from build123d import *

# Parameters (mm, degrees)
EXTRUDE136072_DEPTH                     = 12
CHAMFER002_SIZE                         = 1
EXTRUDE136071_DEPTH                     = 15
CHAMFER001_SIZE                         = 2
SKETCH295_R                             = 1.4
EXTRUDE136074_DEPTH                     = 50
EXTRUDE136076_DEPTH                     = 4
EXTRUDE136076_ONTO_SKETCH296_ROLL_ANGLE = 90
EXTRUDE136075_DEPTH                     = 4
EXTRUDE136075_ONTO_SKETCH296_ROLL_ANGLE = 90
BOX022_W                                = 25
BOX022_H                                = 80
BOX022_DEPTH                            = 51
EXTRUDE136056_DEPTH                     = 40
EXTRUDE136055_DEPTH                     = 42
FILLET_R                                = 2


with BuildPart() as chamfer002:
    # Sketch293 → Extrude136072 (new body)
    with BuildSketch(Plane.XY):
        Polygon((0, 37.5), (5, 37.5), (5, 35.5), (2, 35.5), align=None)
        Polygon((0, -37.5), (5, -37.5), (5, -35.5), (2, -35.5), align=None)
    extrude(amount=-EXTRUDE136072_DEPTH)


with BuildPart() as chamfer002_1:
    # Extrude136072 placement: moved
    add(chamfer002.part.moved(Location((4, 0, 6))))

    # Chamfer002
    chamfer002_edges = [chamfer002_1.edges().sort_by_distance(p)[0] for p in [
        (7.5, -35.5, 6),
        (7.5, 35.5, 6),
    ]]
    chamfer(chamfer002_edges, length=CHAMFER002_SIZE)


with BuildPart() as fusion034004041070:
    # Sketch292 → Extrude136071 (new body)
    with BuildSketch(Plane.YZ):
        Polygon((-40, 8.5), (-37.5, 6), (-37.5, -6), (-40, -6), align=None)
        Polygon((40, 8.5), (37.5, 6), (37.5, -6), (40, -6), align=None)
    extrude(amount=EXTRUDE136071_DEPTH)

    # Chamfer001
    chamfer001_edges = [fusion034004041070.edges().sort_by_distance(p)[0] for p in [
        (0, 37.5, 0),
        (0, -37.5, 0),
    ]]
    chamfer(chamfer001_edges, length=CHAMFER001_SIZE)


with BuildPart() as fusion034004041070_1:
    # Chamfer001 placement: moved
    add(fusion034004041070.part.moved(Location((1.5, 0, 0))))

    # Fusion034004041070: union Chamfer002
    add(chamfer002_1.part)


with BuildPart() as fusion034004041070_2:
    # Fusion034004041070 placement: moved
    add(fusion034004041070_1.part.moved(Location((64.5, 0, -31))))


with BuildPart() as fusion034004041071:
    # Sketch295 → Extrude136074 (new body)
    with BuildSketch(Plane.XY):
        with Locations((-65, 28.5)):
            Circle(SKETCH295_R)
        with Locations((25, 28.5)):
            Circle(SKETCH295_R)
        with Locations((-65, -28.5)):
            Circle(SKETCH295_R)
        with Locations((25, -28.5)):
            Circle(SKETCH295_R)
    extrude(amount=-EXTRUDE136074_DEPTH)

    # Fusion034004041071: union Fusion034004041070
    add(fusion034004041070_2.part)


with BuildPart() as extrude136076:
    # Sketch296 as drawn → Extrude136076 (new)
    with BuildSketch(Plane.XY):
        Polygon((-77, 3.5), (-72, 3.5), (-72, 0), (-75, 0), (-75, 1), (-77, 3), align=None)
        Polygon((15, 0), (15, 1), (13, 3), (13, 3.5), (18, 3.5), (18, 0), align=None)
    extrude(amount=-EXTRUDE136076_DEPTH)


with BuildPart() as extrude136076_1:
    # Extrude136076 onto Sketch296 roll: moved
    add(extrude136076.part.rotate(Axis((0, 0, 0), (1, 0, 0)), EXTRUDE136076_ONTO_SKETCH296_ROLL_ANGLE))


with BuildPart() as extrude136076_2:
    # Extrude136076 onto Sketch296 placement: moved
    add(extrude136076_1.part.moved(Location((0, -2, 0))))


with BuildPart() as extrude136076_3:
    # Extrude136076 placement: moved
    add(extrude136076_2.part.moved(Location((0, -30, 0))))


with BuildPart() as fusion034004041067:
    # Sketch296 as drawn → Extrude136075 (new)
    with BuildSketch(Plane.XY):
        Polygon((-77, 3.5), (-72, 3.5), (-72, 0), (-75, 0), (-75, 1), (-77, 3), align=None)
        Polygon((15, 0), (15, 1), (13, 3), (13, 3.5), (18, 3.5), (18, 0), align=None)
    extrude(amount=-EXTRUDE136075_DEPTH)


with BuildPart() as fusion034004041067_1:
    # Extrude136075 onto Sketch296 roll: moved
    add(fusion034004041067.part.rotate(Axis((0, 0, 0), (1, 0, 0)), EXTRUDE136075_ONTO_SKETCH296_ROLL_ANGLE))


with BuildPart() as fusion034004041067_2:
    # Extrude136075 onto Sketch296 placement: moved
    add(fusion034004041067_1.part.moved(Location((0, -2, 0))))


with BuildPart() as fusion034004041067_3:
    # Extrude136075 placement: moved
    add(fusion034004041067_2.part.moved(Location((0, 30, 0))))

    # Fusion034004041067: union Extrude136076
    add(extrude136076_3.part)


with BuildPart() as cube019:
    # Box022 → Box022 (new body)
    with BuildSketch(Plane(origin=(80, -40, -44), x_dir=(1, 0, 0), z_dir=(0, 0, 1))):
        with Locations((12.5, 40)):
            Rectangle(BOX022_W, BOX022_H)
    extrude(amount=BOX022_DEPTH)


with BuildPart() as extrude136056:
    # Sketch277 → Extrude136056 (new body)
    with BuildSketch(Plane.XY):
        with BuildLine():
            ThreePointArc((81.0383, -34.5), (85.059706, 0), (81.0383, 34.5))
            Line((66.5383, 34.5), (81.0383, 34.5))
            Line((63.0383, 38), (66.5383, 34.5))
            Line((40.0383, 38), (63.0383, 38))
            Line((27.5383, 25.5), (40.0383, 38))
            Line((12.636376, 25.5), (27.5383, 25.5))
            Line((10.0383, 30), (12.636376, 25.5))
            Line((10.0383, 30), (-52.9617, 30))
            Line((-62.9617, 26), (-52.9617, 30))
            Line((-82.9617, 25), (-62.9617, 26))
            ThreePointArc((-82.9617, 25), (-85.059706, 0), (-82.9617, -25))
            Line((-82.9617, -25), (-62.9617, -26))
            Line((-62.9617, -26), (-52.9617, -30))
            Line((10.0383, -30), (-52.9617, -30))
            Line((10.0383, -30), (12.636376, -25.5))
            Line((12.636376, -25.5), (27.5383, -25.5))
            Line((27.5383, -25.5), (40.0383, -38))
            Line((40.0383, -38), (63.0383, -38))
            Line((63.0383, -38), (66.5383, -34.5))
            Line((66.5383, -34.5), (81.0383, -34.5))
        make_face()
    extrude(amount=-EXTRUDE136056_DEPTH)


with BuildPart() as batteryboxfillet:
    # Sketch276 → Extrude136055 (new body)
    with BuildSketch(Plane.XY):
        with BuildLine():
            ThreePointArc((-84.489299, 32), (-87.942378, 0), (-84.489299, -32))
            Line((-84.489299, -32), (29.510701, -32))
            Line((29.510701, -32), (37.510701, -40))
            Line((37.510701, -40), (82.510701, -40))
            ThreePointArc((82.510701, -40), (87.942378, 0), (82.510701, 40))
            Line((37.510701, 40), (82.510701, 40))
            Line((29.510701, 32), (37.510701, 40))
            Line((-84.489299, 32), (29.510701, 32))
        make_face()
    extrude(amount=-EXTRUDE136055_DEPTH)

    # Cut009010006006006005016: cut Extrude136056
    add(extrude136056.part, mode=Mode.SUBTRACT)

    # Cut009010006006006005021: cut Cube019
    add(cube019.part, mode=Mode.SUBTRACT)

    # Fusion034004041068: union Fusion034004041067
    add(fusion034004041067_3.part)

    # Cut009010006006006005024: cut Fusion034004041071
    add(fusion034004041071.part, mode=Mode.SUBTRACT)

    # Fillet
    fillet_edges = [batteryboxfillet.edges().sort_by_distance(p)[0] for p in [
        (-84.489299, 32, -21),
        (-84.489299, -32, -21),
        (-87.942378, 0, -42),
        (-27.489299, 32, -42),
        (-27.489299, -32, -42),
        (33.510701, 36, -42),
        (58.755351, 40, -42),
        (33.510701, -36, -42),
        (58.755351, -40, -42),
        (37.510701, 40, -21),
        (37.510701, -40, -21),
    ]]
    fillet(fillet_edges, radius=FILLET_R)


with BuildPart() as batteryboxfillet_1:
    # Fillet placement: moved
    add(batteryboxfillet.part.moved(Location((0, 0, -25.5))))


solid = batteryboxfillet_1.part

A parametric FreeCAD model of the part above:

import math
import FreeCAD as App
import Part
import Sketcher
from FreeCAD import Vector
Q = App.Units.Quantity


def edges_at(feature, points):
    """Names of the edges that pass closest to the given points."""
    edges = feature.Shape.Edges
    near = lambda p: min(range(len(edges)), key=lambda i: edges[i].distToShape(Part.Vertex(*p))[0])
    return sorted({f"Edge{near(p) + 1}" for p in points})

doc = App.newDocument("Part")
body = doc.addObject("PartDesign::Body", "Body")
body.AllowCompound = True

sketch1 = doc.addObject("Sketcher::SketchObject", "Sketch")
body.addObject(sketch1)
sketch1.AttachmentSupport = (doc.XY_Plane, [""])
sketch1.MapMode = "FlatFace"
sketch1.addGeometry(Part.LineSegment(Vector(5, 37.5, 0), Vector(0, 37.5, 0)), False)
sketch1.addGeometry(Part.LineSegment(Vector(0, 37.5, 0), Vector(2, 35.5, 0)), False)
sketch1.addGeometry(Part.LineSegment(Vector(2, 35.5, 0), Vector(5, 35.5, 0)), False)
sketch1.addGeometry(Part.LineSegment(Vector(5, 35.5, 0), Vector(5, 37.5, 0)), False)
sketch1.addGeometry(Part.LineSegment(Vector(0, -37.5, 0), Vector(5, -37.5, 0)), False)
sketch1.addGeometry(Part.LineSegment(Vector(5, -37.5, 0), Vector(5, -35.5, 0)), False)
sketch1.addGeometry(Part.LineSegment(Vector(5, -35.5, 0), Vector(2, -35.5, 0)), False)
sketch1.addGeometry(Part.LineSegment(Vector(2, -35.5, 0), Vector(0, -37.5, 0)), False)
sketch1.addConstraint(Sketcher.Constraint("Coincident", 0, 2, 1, 1))
sketch1.addConstraint(Sketcher.Constraint("Coincident", 1, 2, 2, 1))
sketch1.addConstraint(Sketcher.Constraint("Coincident", 2, 2, 3, 1))
sketch1.addConstraint(Sketcher.Constraint("Coincident", 3, 2, 0, 1))
sketch1.addConstraint(Sketcher.Constraint("Coincident", 4, 2, 5, 1))
sketch1.addConstraint(Sketcher.Constraint("Coincident", 5, 2, 6, 1))
sketch1.addConstraint(Sketcher.Constraint("Coincident", 6, 2, 7, 1))
sketch1.addConstraint(Sketcher.Constraint("Coincident", 7, 2, 4, 1))
sketch1.addConstraint(Sketcher.Constraint("Horizontal", 0))
sketch1.addConstraint(Sketcher.Constraint("Horizontal", 2))
sketch1.addConstraint(Sketcher.Constraint("Vertical", 3))
sketch1.addConstraint(Sketcher.Constraint("Horizontal", 4))
sketch1.addConstraint(Sketcher.Constraint("Vertical", 5))
sketch1.addConstraint(Sketcher.Constraint("Horizontal", 6))
sketch1.addConstraint(Sketcher.Constraint("Symmetric", 0, 2, 7, 2, -1, 1))
sketch1.addConstraint(Sketcher.Constraint("Symmetric", 2, 2, 5, 2, -1))
sketch1.addConstraint(Sketcher.Constraint("PointOnObject", 0, 2, -2))
sketch1.addConstraint(Sketcher.Constraint("Perpendicular", 1, 7))
sketch1.addConstraint(Sketcher.Constraint("Vertical", 1, 2, 6, 2))
sketch1.addConstraint(Sketcher.Constraint("DistanceX", 0, 2, 0, 1, Q("5 mm")))
sketch1.addConstraint(Sketcher.Constraint("DistanceX", 2, 1, 2, 2, Q("3 mm")))
sketch1.addConstraint(Sketcher.Constraint("DistanceY", 4, 2, 2, 2, Q("73 mm")))
pad1 = doc.addObject("PartDesign::Pad", "Pad")
body.addObject(pad1)
pad1.Profile = sketch1
pad1.Length = 12
pad1.Reversed = True
body2 = doc.addObject("PartDesign::Body", "Body001")
body2.AllowCompound = True
doc.recompute()

body.Placement = App.Placement(Vector(4, 0, 6), App.Rotation(Vector(0, 0, 1), 0))
boolean = doc.addObject("PartDesign::Boolean", "Boolean")
body2.addObject(boolean)
boolean.Type = "Fuse"
boolean.addObjects([body])
doc.recompute()

chamfer = doc.addObject("PartDesign::Chamfer", "Chamfer")
body2.addObject(chamfer)
chamfer.Base = (boolean, edges_at(boolean, [(7.5, -35.5, 6), (7.5, 35.5, 6)]))
chamfer.Size = 1
body3 = doc.addObject("PartDesign::Body", "Body002")
body3.AllowCompound = True

sketch2 = doc.addObject("Sketcher::SketchObject", "Sketch001")
body3.addObject(sketch2)
sketch2.AttachmentSupport = (doc.getObject("YZ_Plane002"), [""])
sketch2.MapMode = "FlatFace"
sketch2.addGeometry(Part.LineSegment(Vector(-37.5, 6, 0), Vector(-40, 8.5, 0)), False)
sketch2.addGeometry(Part.LineSegment(Vector(-40, 8.5, 0), Vector(-40, -6, 0)), False)
sketch2.addGeometry(Part.LineSegment(Vector(-40, -6, 0), Vector(-37.5, -6, 0)), False)
sketch2.addGeometry(Part.LineSegment(Vector(-37.5, -6, 0), Vector(-37.5, 6, 0)), False)
sketch2.addGeometry(Part.LineSegment(Vector(40, 8.5, 0), Vector(37.5, 6, 0)), False)
sketch2.addGeometry(Part.LineSegment(Vector(37.5, 6, 0), Vector(37.5, -6, 0)), False)
sketch2.addGeometry(Part.LineSegment(Vector(37.5, -6, 0), Vector(40, -6, 0)), False)
sketch2.addGeometry(Part.LineSegment(Vector(40, -6, 0), Vector(40, 8.5, 0)), False)
sketch2.addConstraint(Sketcher.Constraint("Coincident", 0, 2, 1, 1))
sketch2.addConstraint(Sketcher.Constraint("Coincident", 1, 2, 2, 1))
sketch2.addConstraint(Sketcher.Constraint("Coincident", 2, 2, 3, 1))
sketch2.addConstraint(Sketcher.Constraint("Coincident", 3, 2, 0, 1))
sketch2.addConstraint(Sketcher.Constraint("Coincident", 4, 2, 5, 1))
sketch2.addConstraint(Sketcher.Constraint("Coincident", 5, 2, 6, 1))
sketch2.addConstraint(Sketcher.Constraint("Coincident", 6, 2, 7, 1))
sketch2.addConstraint(Sketcher.Constraint("Coincident", 7, 2, 4, 1))
sketch2.addConstraint(Sketcher.Constraint("Vertical", 1))
sketch2.addConstraint(Sketcher.Constraint("Horizontal", 2))
sketch2.addConstraint(Sketcher.Constraint("Vertical", 3))
sketch2.addConstraint(Sketcher.Constraint("Vertical", 5))
sketch2.addConstraint(Sketcher.Constraint("Horizontal", 6))
sketch2.addConstraint(Sketcher.Constraint("Vertical", 7))
sketch2.addConstraint(Sketcher.Constraint("Symmetric", 2, 2, 4, 2, -1, 1))
sketch2.addConstraint(Sketcher.Constraint("Symmetric", 1, 2, 6, 2, -2))
sketch2.addConstraint(Sketcher.Constraint("Perpendicular", 0, 4))
sketch2.addConstraint(Sketcher.Constraint("Horizontal", 3, 2, 4, 2))
sketch2.addConstraint(Sketcher.Constraint("Horizontal", 0, 2, 7, 2))
sketch2.addConstraint(Sketcher.Constraint("DistanceY", 3, 1, 3, 2, Q("12 mm")))
sketch2.addConstraint(Sketcher.Constraint("DistanceX", 2, 1, 2, 2, Q("2.5 mm")))
sketch2.addConstraint(Sketcher.Constraint("DistanceX", 0, 2, -1, 1, Q("40 mm")))
pad2 = doc.addObject("PartDesign::Pad", "Pad001")
body3.addObject(pad2)
pad2.Profile = sketch2
pad2.Length = 15
doc.recompute()

chamfer2 = doc.addObject("PartDesign::Chamfer", "Chamfer001")
body3.addObject(chamfer2)
chamfer2.Base = (pad2, edges_at(pad2, [(0, 37.5, 0), (0, -37.5, 0)]))
chamfer2.Size = 2
body4 = doc.addObject("PartDesign::Body", "Body003")
body4.AllowCompound = True
doc.recompute()

body3.Placement = App.Placement(Vector(1.5, 0, 0), App.Rotation(Vector(0, 0, 1), 0))
boolean2 = doc.addObject("PartDesign::Boolean", "Boolean001")
body4.addObject(boolean2)
boolean2.Type = "Fuse"
boolean2.addObjects([body3])
doc.recompute()

boolean3 = doc.addObject("PartDesign::Boolean", "Boolean002")
body4.addObject(boolean3)
boolean3.Type = "Fuse"
boolean3.addObjects([body2])
body5 = doc.addObject("PartDesign::Body", "Body004")
body5.AllowCompound = True
doc.recompute()

body4.Placement = App.Placement(Vector(64.5, 0, -31), App.Rotation(Vector(0, 0, 1), 0))
boolean4 = doc.addObject("PartDesign::Boolean", "Boolean003")
body5.addObject(boolean4)
boolean4.Type = "Fuse"
boolean4.addObjects([body4])
body6 = doc.addObject("PartDesign::Body", "Body005")
body6.AllowCompound = True

sketch3 = doc.addObject("Sketcher::SketchObject", "Sketch002")
body6.addObject(sketch3)
sketch3.AttachmentSupport = (doc.getObject("XY_Plane005"), [""])
sketch3.MapMode = "FlatFace"
sketch3.addGeometry(Part.Circle(Vector(-65, 28.5, 0), Vector(0, 0, 1), 1.4), False)
sketch3.addGeometry(Part.Circle(Vector(25, 28.5, 0), Vector(0, 0, 1), 1.4), False)
sketch3.addGeometry(Part.Circle(Vector(-65, -28.5, 0), Vector(0, 0, 1), 1.4), False)
sketch3.addGeometry(Part.Circle(Vector(25, -28.5, 0), Vector(0, 0, 1), 1.4), False)
sketch3.addConstraint(Sketcher.Constraint("Equal", 0, 1))
sketch3.addConstraint(Sketcher.Constraint("Equal", 1, 2))
sketch3.addConstraint(Sketcher.Constraint("Equal", 2, 3))
sketch3.addConstraint(Sketcher.Constraint("Symmetric", 0, 3, 2, 3, -1))
sketch3.addConstraint(Sketcher.Constraint("Symmetric", 1, 3, 3, 3, -1))
sketch3.addConstraint(Sketcher.Constraint("Horizontal", 0, 3, 1, 3))
sketch3.addConstraint(Sketcher.Constraint("Diameter", 0, Q("2.8 mm")))
sketch3.addConstraint(Sketcher.Constraint("DistanceX", 0, 3, -1, 1, Q("65 mm")))
sketch3.addConstraint(Sketcher.Constraint("DistanceX", -1, 1, 1, 3, Q("25 mm")))
sketch3.addConstraint(Sketcher.Constraint("DistanceY", 2, 3, 0, 3, Q("57 mm")))
pad3 = doc.addObject("PartDesign::Pad", "Pad002")
body6.addObject(pad3)
pad3.Profile = sketch3
pad3.Length = 50
pad3.Reversed = True
doc.recompute()

boolean5 = doc.addObject("PartDesign::Boolean", "Boolean004")
body6.addObject(boolean5)
boolean5.Type = "Fuse"
boolean5.addObjects([body5])
body7 = doc.addObject("PartDesign::Body", "Body006")
body7.AllowCompound = True

sketch4 = doc.addObject("Sketcher::SketchObject", "Sketch003")
body7.addObject(sketch4)
sketch4.AttachmentSupport = (doc.getObject("XY_Plane006"), [""])
sketch4.MapMode = "FlatFace"
sketch4.addGeometry(Part.LineSegment(Vector(-72, 3.5, 0), Vector(-77, 3.5, 0)), False)
sketch4.addGeometry(Part.LineSegment(Vector(-77, 3.5, 0), Vector(-77, 3, 0)), False)
sketch4.addGeometry(Part.LineSegment(Vector(-77, 3, 0), Vector(-75, 1, 0)), False)
sketch4.addGeometry(Part.LineSegment(Vector(-75, 1, 0), Vector(-75, 0, 0)), False)
sketch4.addGeometry(Part.LineSegment(Vector(-75, 0, 0), Vector(-72, 0, 0)), False)
sketch4.addGeometry(Part.LineSegment(Vector(-72, 0, 0), Vector(-72, 3.5, 0)), False)
sketch4.addGeometry(Part.LineSegment(Vector(15, 1, 0), Vector(15, 0, 0)), False)
sketch4.addGeometry(Part.LineSegment(Vector(15, 0, 0), Vector(18, 0, 0)), False)
sketch4.addGeometry(Part.LineSegment(Vector(18, 0, 0), Vector(18, 3.5, 0)), False)
sketch4.addGeometry(Part.LineSegment(Vector(18, 3.5, 0), Vector(13, 3.5, 0)), False)
sketch4.addGeometry(Part.LineSegment(Vector(13, 3.5, 0), Vector(13, 3, 0)), False)
sketch4.addGeometry(Part.LineSegment(Vector(13, 3, 0), Vector(15, 1, 0)), False)
sketch4.addConstraint(Sketcher.Constraint("Coincident", 0, 2, 1, 1))
sketch4.addConstraint(Sketcher.Constraint("Coincident", 1, 2, 2, 1))
sketch4.addConstraint(Sketcher.Constraint("Coincident", 2, 2, 3, 1))
sketch4.addConstraint(Sketcher.Constraint("Coincident", 3, 2, 4, 1))
sketch4.addConstraint(Sketcher.Constraint("Coincident", 4, 2, 5, 1))
sketch4.addConstraint(Sketcher.Constraint("Coincident", 5, 2, 0, 1))
sketch4.addConstraint(Sketcher.Constraint("Coincident", 6, 2, 7, 1))
sketch4.addConstraint(Sketcher.Constraint("Coincident", 7, 2, 8, 1))
sketch4.addConstraint(Sketcher.Constraint("Coincident", 8, 2, 9, 1))
sketch4.addConstraint(Sketcher.Constraint("Coincident", 9, 2, 10, 1))
sketch4.addConstraint(Sketcher.Constraint("Coincident", 10, 2, 11, 1))
sketch4.addConstraint(Sketcher.Constraint("Coincident", 11, 2, 6, 1))
sketch4.addConstraint(Sketcher.Constraint("Horizontal", 0))
sketch4.addConstraint(Sketcher.Constraint("Vertical", 1))
sketch4.addConstraint(Sketcher.Constraint("Vertical", 3))
sketch4.addConstraint(Sketcher.Constraint("Horizontal", 4))
sketch4.addConstraint(Sketcher.Constraint("Vertical", 5))
sketch4.addConstraint(Sketcher.Constraint("Vertical", 6))
sketch4.addConstraint(Sketcher.Constraint("Horizontal", 7))
sketch4.addConstraint(Sketcher.Constraint("Vertical", 8))
sketch4.addConstraint(Sketcher.Constraint("Horizontal", 9))
sketch4.addConstraint(Sketcher.Constraint("Vertical", 10))
sketch4.addConstraint(Sketcher.Constraint("PointOnObject", 3, 2, -1))
sketch4.addConstraint(Sketcher.Constraint("PointOnObject", 6, 2, -1))
sketch4.addConstraint(Sketcher.Constraint("Parallel", 2, 11))
sketch4.addConstraint(Sketcher.Constraint("Horizontal", 5, 2, 8, 2))
sketch4.addConstraint(Sketcher.Constraint("Horizontal", 1, 2, 10, 2))
sketch4.addConstraint(Sketcher.Constraint("Horizontal", 2, 2, 11, 2))
sketch4.addConstraint(Sketcher.Constraint("Equal", 4, 7))
sketch4.addConstraint(Sketcher.Constraint("DistanceX", 0, 2, 0, 1, Q("5 mm")))
sketch4.addConstraint(Sketcher.Constraint("DistanceX", 4, 1, 4, 2, Q("3 mm")))
sketch4.addConstraint(Sketcher.Constraint("DistanceY", 3, 2, 3, 1, Q("1 mm")))
sketch4.addConstraint(Sketcher.Constraint("Angle", 2, Q("-45 deg")))
sketch4.addConstraint(Sketcher.Constraint("DistanceY", 1, 2, 1, 1, Q("0.5 mm")))
sketch4.addConstraint(Sketcher.Constraint("DistanceX", 0, 2, -1, 1, Q("77 mm")))
sketch4.addConstraint(Sketcher.Constraint("DistanceX", -1, 1, 6, 2, Q("15 mm")))
pad4 = doc.addObject("PartDesign::Pad", "Pad003")
body7.addObject(pad4)
pad4.Profile = sketch4
pad4.Length = 4
pad4.Reversed = True
body8 = doc.addObject("PartDesign::Body", "Body007")
body8.AllowCompound = True
doc.recompute()

body7.Placement = App.Placement(Vector(0, 0, 0), App.Rotation(Vector(1, 0, 0), 90))
boolean6 = doc.addObject("PartDesign::Boolean", "Boolean005")
body8.addObject(boolean6)
boolean6.Type = "Fuse"
boolean6.addObjects([body7])
body9 = doc.addObject("PartDesign::Body", "Body008")
body9.AllowCompound = True
doc.recompute()

body8.Placement = App.Placement(Vector(0, -2, 0), App.Rotation(Vector(0, 0, 1), 0))
boolean7 = doc.addObject("PartDesign::Boolean", "Boolean006")
body9.addObject(boolean7)
boolean7.Type = "Fuse"
boolean7.addObjects([body8])
body10 = doc.addObject("PartDesign::Body", "Body009")
body10.AllowCompound = True
doc.recompute()

body9.Placement = App.Placement(Vector(0, -30, 0), App.Rotation(Vector(0, 0, 1), 0))
boolean8 = doc.addObject("PartDesign::Boolean", "Boolean007")
body10.addObject(boolean8)
boolean8.Type = "Fuse"
boolean8.addObjects([body9])
body11 = doc.addObject("PartDesign::Body", "Body010")
body11.AllowCompound = True

sketch5 = doc.addObject("Sketcher::SketchObject", "Sketch004")
body11.addObject(sketch5)
sketch5.AttachmentSupport = (doc.getObject("XY_Plane010"), [""])
sketch5.MapMode = "FlatFace"
sketch5.addGeometry(Part.LineSegment(Vector(-72, 3.5, 0), Vector(-77, 3.5, 0)), False)
sketch5.addGeometry(Part.LineSegment(Vector(-77, 3.5, 0), Vector(-77, 3, 0)), False)
sketch5.addGeometry(Part.LineSegment(Vector(-77, 3, 0), Vector(-75, 1, 0)), False)
sketch5.addGeometry(Part.LineSegment(Vector(-75, 1, 0), Vector(-75, 0, 0)), False)
sketch5.addGeometry(Part.LineSegment(Vector(-75, 0, 0), Vector(-72, 0, 0)), False)
sketch5.addGeometry(Part.LineSegment(Vector(-72, 0, 0), Vector(-72, 3.5, 0)), False)
sketch5.addGeometry(Part.LineSegment(Vector(15, 1, 0), Vector(15, 0, 0)), False)
sketch5.addGeometry(Part.LineSegment(Vector(15, 0, 0), Vector(18, 0, 0)), False)
sketch5.addGeometry(Part.LineSegment(Vector(18, 0, 0), Vector(18, 3.5, 0)), False)
sketch5.addGeometry(Part.LineSegment(Vector(18, 3.5, 0), Vector(13, 3.5, 0)), False)
sketch5.addGeometry(Part.LineSegment(Vector(13, 3.5, 0), Vector(13, 3, 0)), False)
sketch5.addGeometry(Part.LineSegment(Vector(13, 3, 0), Vector(15, 1, 0)), False)
sketch5.addConstraint(Sketcher.Constraint("Coincident", 0, 2, 1, 1))
sketch5.addConstraint(Sketcher.Constraint("Coincident", 1, 2, 2, 1))
sketch5.addConstraint(Sketcher.Constraint("Coincident", 2, 2, 3, 1))
sketch5.addConstraint(Sketcher.Constraint("Coincident", 3, 2, 4, 1))
sketch5.addConstraint(Sketcher.Constraint("Coincident", 4, 2, 5, 1))
sketch5.addConstraint(Sketcher.Constraint("Coincident", 5, 2, 0, 1))
sketch5.addConstraint(Sketcher.Constraint("Coincident", 6, 2, 7, 1))
sketch5.addConstraint(Sketcher.Constraint("Coincident", 7, 2, 8, 1))
sketch5.addConstraint(Sketcher.Constraint("Coincident", 8, 2, 9, 1))
sketch5.addConstraint(Sketcher.Constraint("Coincident", 9, 2, 10, 1))
sketch5.addConstraint(Sketcher.Constraint("Coincident", 10, 2, 11, 1))
sketch5.addConstraint(Sketcher.Constraint("Coincident", 11, 2, 6, 1))
sketch5.addConstraint(Sketcher.Constraint("Horizontal", 0))
sketch5.addConstraint(Sketcher.Constraint("Vertical", 1))
sketch5.addConstraint(Sketcher.Constraint("Vertical", 3))
sketch5.addConstraint(Sketcher.Constraint("Horizontal", 4))
sketch5.addConstraint(Sketcher.Constraint("Vertical", 5))
sketch5.addConstraint(Sketcher.Constraint("Vertical", 6))
sketch5.addConstraint(Sketcher.Constraint("Horizontal", 7))
sketch5.addConstraint(Sketcher.Constraint("Vertical", 8))
sketch5.addConstraint(Sketcher.Constraint("Horizontal", 9))
sketch5.addConstraint(Sketcher.Constraint("Vertical", 10))
sketch5.addConstraint(Sketcher.Constraint("PointOnObject", 3, 2, -1))
sketch5.addConstraint(Sketcher.Constraint("PointOnObject", 6, 2, -1))
sketch5.addConstraint(Sketcher.Constraint("Parallel", 2, 11))
sketch5.addConstraint(Sketcher.Constraint("Horizontal", 5, 2, 8, 2))
sketch5.addConstraint(Sketcher.Constraint("Horizontal", 1, 2, 10, 2))
sketch5.addConstraint(Sketcher.Constraint("Horizontal", 2, 2, 11, 2))
sketch5.addConstraint(Sketcher.Constraint("Equal", 4, 7))
sketch5.addConstraint(Sketcher.Constraint("DistanceX", 0, 2, 0, 1, Q("5 mm")))
sketch5.addConstraint(Sketcher.Constraint("DistanceX", 4, 1, 4, 2, Q("3 mm")))
sketch5.addConstraint(Sketcher.Constraint("DistanceY", 3, 2, 3, 1, Q("1 mm")))
sketch5.addConstraint(Sketcher.Constraint("Angle", 2, Q("-45 deg")))
sketch5.addConstraint(Sketcher.Constraint("DistanceY", 1, 2, 1, 1, Q("0.5 mm")))
sketch5.addConstraint(Sketcher.Constraint("DistanceX", 0, 2, -1, 1, Q("77 mm")))
sketch5.addConstraint(Sketcher.Constraint("DistanceX", -1, 1, 6, 2, Q("15 mm")))
pad5 = doc.addObject("PartDesign::Pad", "Pad004")
body11.addObject(pad5)
pad5.Profile = sketch5
pad5.Length = 4
pad5.Reversed = True
body12 = doc.addObject("PartDesign::Body", "Body011")
body12.AllowCompound = True
doc.recompute()

body11.Placement = App.Placement(Vector(0, 0, 0), App.Rotation(Vector(1, 0, 0), 90))
boolean9 = doc.addObject("PartDesign::Boolean", "Boolean008")
body12.addObject(boolean9)
boolean9.Type = "Fuse"
boolean9.addObjects([body11])
body13 = doc.addObject("PartDesign::Body", "Body012")
body13.AllowCompound = True
doc.recompute()

body12.Placement = App.Placement(Vector(0, -2, 0), App.Rotation(Vector(0, 0, 1), 0))
boolean10 = doc.addObject("PartDesign::Boolean", "Boolean009")
body13.addObject(boolean10)
boolean10.Type = "Fuse"
boolean10.addObjects([body12])
body14 = doc.addObject("PartDesign::Body", "Body013")
body14.AllowCompound = True
doc.recompute()

body13.Placement = App.Placement(Vector(0, 30, 0), App.Rotation(Vector(0, 0, 1), 0))
boolean11 = doc.addObject("PartDesign::Boolean", "Boolean010")
body14.addObject(boolean11)
boolean11.Type = "Fuse"
boolean11.addObjects([body13])
doc.recompute()

boolean12 = doc.addObject("PartDesign::Boolean", "Boolean011")
body14.addObject(boolean12)
boolean12.Type = "Fuse"
boolean12.addObjects([body10])
body15 = doc.addObject("PartDesign::Body", "Body014")

sketch6 = doc.addObject("Sketcher::SketchObject", "Sketch005")
body15.addObject(sketch6)
sketch6.AttachmentSupport = (doc.getObject("XY_Plane014"), [""])
sketch6.MapMode = "FlatFace"
sketch6.AttachmentOffset = App.Placement(Vector(0, 0, -44), App.Rotation())
sketch6.addGeometry(Part.LineSegment(Vector(80, 40, 0), Vector(80, -40, 0)), False)
sketch6.addGeometry(Part.LineSegment(Vector(80, -40, 0), Vector(105, -40, 0)), False)
sketch6.addGeometry(Part.LineSegment(Vector(105, -40, 0), Vector(105, 40, 0)), False)
sketch6.addGeometry(Part.LineSegment(Vector(105, 40, 0), Vector(80, 40, 0)), False)
sketch6.addConstraint(Sketcher.Constraint("Coincident", 0, 2, 1, 1))
sketch6.addConstraint(Sketcher.Constraint("Coincident", 1, 2, 2, 1))
sketch6.addConstraint(Sketcher.Constraint("Coincident", 2, 2, 3, 1))
sketch6.addConstraint(Sketcher.Constraint("Coincident", 3, 2, 0, 1))
sketch6.addConstraint(Sketcher.Constraint("Vertical", 0))
sketch6.addConstraint(Sketcher.Constraint("Horizontal", 1))
sketch6.addConstraint(Sketcher.Constraint("Vertical", 2))
sketch6.addConstraint(Sketcher.Constraint("Horizontal", 3))
sketch6.addConstraint(Sketcher.Constraint("DistanceX", 1, 1, 1, 2, Q("25 mm")))
sketch6.addConstraint(Sketcher.Constraint("DistanceY", 0, 2, 0, 1, Q("80 mm")))
sketch6.addConstraint(Sketcher.Constraint("DistanceX", -1, 1, 0, 2, Q("80 mm")))
sketch6.addConstraint(Sketcher.Constraint("DistanceY", 0, 2, -1, 1, Q("40 mm")))
pad6 = doc.addObject("PartDesign::Pad", "Pad005")
body15.addObject(pad6)
pad6.Profile = sketch6
pad6.Length = 51
body16 = doc.addObject("PartDesign::Body", "Body015")

sketch7 = doc.addObject("Sketcher::SketchObject", "Sketch006")
body16.addObject(sketch7)
sketch7.AttachmentSupport = (doc.getObject("XY_Plane015"), [""])
sketch7.MapMode = "FlatFace"
sketch7.addGeometry(Part.ArcOfCircle(Part.Circle(Vector(-64.9, 0, 0), Vector(0, 0, 1), 150), math.radians(-13), math.radians(13)), False)
sketch7.addGeometry(Part.LineSegment(Vector(81, 34.5, 0), Vector(66.5, 34.5, 0)), False)
sketch7.addGeometry(Part.LineSegment(Vector(66.5, 34.5, 0), Vector(63, 38, 0)), False)
sketch7.addGeometry(Part.LineSegment(Vector(63, 38, 0), Vector(40, 38, 0)), False)
sketch7.addGeometry(Part.LineSegment(Vector(40, 38, 0), Vector(27.5, 25.5, 0)), False)
sketch7.addGeometry(Part.LineSegment(Vector(27.5, 25.5, 0), Vector(12.6, 25.5, 0)), False)
sketch7.addGeometry(Part.LineSegment(Vector(12.6, 25.5, 0), Vector(10, 30, 0)), False)
sketch7.addGeometry(Part.LineSegment(Vector(10, 30, 0), Vector(-53, 30, 0)), False)
sketch7.addGeometry(Part.LineSegment(Vector(-53, 30, 0), Vector(-63, 26, 0)), False)
sketch7.addGeometry(Part.LineSegment(Vector(-63, 26, 0), Vector(-83, 25, 0)), False)
sketch7.addGeometry(Part.ArcOfCircle(Part.Circle(Vector(64.9, 0, 0), Vector(0, 0, 1), 150), math.radians(170.41), math.radians(189.59)), False)
sketch7.addGeometry(Part.LineSegment(Vector(-83, -25, 0), Vector(-63, -26, 0)), False)
sketch7.addGeometry(Part.LineSegment(Vector(-63, -26, 0), Vector(-53, -30, 0)), False)
sketch7.addGeometry(Part.LineSegment(Vector(-53, -30, 0), Vector(10, -30, 0)), False)
sketch7.addGeometry(Part.LineSegment(Vector(10, -30, 0), Vector(12.6, -25.5, 0)), False)
sketch7.addGeometry(Part.LineSegment(Vector(12.6, -25.5, 0), Vector(27.5, -25.5, 0)), False)
sketch7.addGeometry(Part.LineSegment(Vector(27.5, -25.5, 0), Vector(40, -38, 0)), False)
sketch7.addGeometry(Part.LineSegment(Vector(40, -38, 0), Vector(63, -38, 0)), False)
sketch7.addGeometry(Part.LineSegment(Vector(63, -38, 0), Vector(66.5, -34.5, 0)), False)
sketch7.addGeometry(Part.LineSegment(Vector(66.5, -34.5, 0), Vector(81, -34.5, 0)), False)
sketch7.addConstraint(Sketcher.Constraint("Coincident", 0, 2, 1, 1))
sketch7.addConstraint(Sketcher.Constraint("Coincident", 1, 2, 2, 1))
sketch7.addConstraint(Sketcher.Constraint("Coincident", 2, 2, 3, 1))
sketch7.addConstraint(Sketcher.Constraint("Coincident", 3, 2, 4, 1))
sketch7.addConstraint(Sketcher.Constraint("Coincident", 4, 2, 5, 1))
sketch7.addConstraint(Sketcher.Constraint("Coincident", 5, 2, 6, 1))
sketch7.addConstraint(Sketcher.Constraint("Coincident", 6, 2, 7, 1))
sketch7.addConstraint(Sketcher.Constraint("Coincident", 7, 2, 8, 1))
sketch7.addConstraint(Sketcher.Constraint("Coincident", 8, 2, 9, 1))
sketch7.addConstraint(Sketcher.Constraint("Coincident", 9, 2, 10, 1))
sketch7.addConstraint(Sketcher.Constraint("Coincident", 10, 2, 11, 1))
sketch7.addConstraint(Sketcher.Constraint("Coincident", 11, 2, 12, 1))
sketch7.addConstraint(Sketcher.Constraint("Coincident", 12, 2, 13, 1))
sketch7.addConstraint(Sketcher.Constraint("Coincident", 13, 2, 14, 1))
sketch7.addConstraint(Sketcher.Constraint("Coincident", 14, 2, 15, 1))
sketch7.addConstraint(Sketcher.Constraint("Coincident", 15, 2, 16, 1))
sketch7.addConstraint(Sketcher.Constraint("Coincident", 16, 2, 17, 1))
sketch7.addConstraint(Sketcher.Constraint("Coincident", 17, 2, 18, 1))
sketch7.addConstraint(Sketcher.Constraint("Coincident", 18, 2, 19, 1))
sketch7.addConstraint(Sketcher.Constraint("Coincident", 19, 2, 0, 1))
sketch7.addConstraint(Sketcher.Constraint("Horizontal", 1))
sketch7.addConstraint(Sketcher.Constraint("Horizontal", 3))
sketch7.addConstraint(Sketcher.Constraint("Horizontal", 5))
sketch7.addConstraint(Sketcher.Constraint("Horizontal", 7))
sketch7.addConstraint(Sketcher.Constraint("Horizontal", 13))
sketch7.addConstraint(Sketcher.Constraint("Horizontal", 15))
sketch7.addConstraint(Sketcher.Constraint("Horizontal", 17))
sketch7.addConstraint(Sketcher.Constraint("Horizontal", 19))
sketch7.addConstraint(Sketcher.Constraint("Symmetric", 9, 2, 10, 2, -1))
sketch7.addConstraint(Sketcher.Constraint("Symmetric", 8, 2, 11, 2, -1))
sketch7.addConstraint(Sketcher.Constraint("Symmetric", 7, 2, 12, 2, -1))
sketch7.addConstraint(Sketcher.Constraint("Symmetric", 5, 2, 14, 2, -1))
sketch7.addConstraint(Sketcher.Constraint("Symmetric", 3, 2, 16, 2, -1))
sketch7.addConstraint(Sketcher.Constraint("Symmetric", 1, 2, 18, 2, -1))
sketch7.addConstraint(Sketcher.Constraint("PointOnObject", 0, 3, -1))
sketch7.addConstraint(Sketcher.Constraint("Perpendicular", 2, 4))
sketch7.addConstraint(Sketcher.Constraint("Perpendicular", 4, 16))
sketch7.addConstraint(Sketcher.Constraint("Perpendicular", 16, 18))
sketch7.addConstraint(Sketcher.Constraint("Vertical", 6, 2, 13, 2))
sketch7.addConstraint(Sketcher.Constraint("Vertical", 4, 2, 15, 2))
sketch7.addConstraint(Sketcher.Constraint("DistanceX", 3, 2, 3, 1, Q("23 mm")))
sketch7.addConstraint(Sketcher.Constraint("DistanceX", 7, 2, 7, 1, Q("63 mm")))
sketch7.addConstraint(Sketcher.Constraint("Angle", 6, Q("119.999998 deg")))
sketch7.addConstraint(Sketcher.Constraint("DistanceX", 1, 2, 1, 1, Q("14.5 mm")))
sketch7.addConstraint(Sketcher.Constraint("DistanceY", -1, 1, 2, 2, Q("38 mm")))
sketch7.addConstraint(Sketcher.Constraint("DistanceY", -1, 1, 6, 2, Q("30 mm")))
sketch7.addConstraint(Sketcher.Constraint("DistanceY", -1, 1, 8, 2, Q("26 mm")))
sketch7.addConstraint(Sketcher.Constraint("DistanceY", -1, 1, 9, 2, Q("25 mm")))
sketch7.addConstraint(Sketcher.Constraint("DistanceX", 2, 2, 0, 2, Q("18 mm")))
sketch7.addConstraint(Sketcher.Constraint("DistanceX", 4, 2, 1, 2, Q("39 mm")))
sketch7.addConstraint(Sketcher.Constraint("DistanceX", 6, 2, 3, 2, Q("30 mm")))
sketch7.addConstraint(Sketcher.Constraint("DistanceX", 8, 2, 7, 2, Q("10 mm")))
sketch7.addConstraint(Sketcher.Constraint("DistanceX", 9, 2, 8, 2, Q("20 mm")))
sketch7.addConstraint(Sketcher.Constraint("Radius", 0, Q("149.999988 mm")))
sketch7.addConstraint(Sketcher.Constraint("Radius", 10, Q("149.999959 mm")))
sketch7.addConstraint(Sketcher.Constraint("DistanceX", -1, 1, 0, 2, Q("81.0383 mm")))
pad7 = doc.addObject("PartDesign::Pad", "Pad006")
body16.addObject(pad7)
pad7.Profile = sketch7
pad7.Length = 40
pad7.Reversed = True
body17 = doc.addObject("PartDesign::Body", "Body016")

sketch8 = doc.addObject("Sketcher::SketchObject", "Sketch007")
body17.addObject(sketch8)
sketch8.AttachmentSupport = (doc.getObject("XY_Plane016"), [""])
sketch8.MapMode = "FlatFace"
sketch8.addGeometry(Part.ArcOfCircle(Part.Circle(Vector(62, 0, 0), Vector(0, 0, 1), 150), math.radians(168), math.radians(192)), False)
sketch8.addGeometry(Part.LineSegment(Vector(-84, -32, 0), Vector(30, -32, 0)), False)
sketch8.addGeometry(Part.LineSegment(Vector(30, -32, 0), Vector(38, -40, 0)), False)
sketch8.addGeometry(Part.LineSegment(Vector(38, -40, 0), Vector(83, -40, 0)), False)
sketch8.addGeometry(Part.ArcOfCircle(Part.Circle(Vector(-62, 0, 0), Vector(0, 0, 1), 150), math.radians(-15), math.radians(15)), False)
sketch8.addGeometry(Part.LineSegment(Vector(83, 40, 0), Vector(38, 40, 0)), False)
sketch8.addGeometry(Part.LineSegment(Vector(38, 40, 0), Vector(30, 32, 0)), False)
sketch8.addGeometry(Part.LineSegment(Vector(30, 32, 0), Vector(-84, 32, 0)), False)
sketch8.addConstraint(Sketcher.Constraint("Coincident", 0, 2, 1, 1))
sketch8.addConstraint(Sketcher.Constraint("Coincident", 1, 2, 2, 1))
sketch8.addConstraint(Sketcher.Constraint("Coincident", 2, 2, 3, 1))
sketch8.addConstraint(Sketcher.Constraint("Coincident", 3, 2, 4, 1))
sketch8.addConstraint(Sketcher.Constraint("Coincident", 4, 2, 5, 1))
sketch8.addConstraint(Sketcher.Constraint("Coincident", 5, 2, 6, 1))
sketch8.addConstraint(Sketcher.Constraint("Coincident", 6, 2, 7, 1))
sketch8.addConstraint(Sketcher.Constraint("Coincident", 7, 2, 0, 1))
sketch8.addConstraint(Sketcher.Constraint("Horizontal", 1))
sketch8.addConstraint(Sketcher.Constraint("Horizontal", 3))
sketch8.addConstraint(Sketcher.Constraint("Horizontal", 5))
sketch8.addConstraint(Sketcher.Constraint("Horizontal", 7))
sketch8.addConstraint(Sketcher.Constraint("Symmetric", 0, 3, 4, 3, -1, 1))
sketch8.addConstraint(Sketcher.Constraint("Symmetric", 3, 2, 4, 2, -1))
sketch8.addConstraint(Sketcher.Constraint("Symmetric", 1, 2, 6, 2, -1))
sketch8.addConstraint(Sketcher.Constraint("Perpendicular", 2, 6))
sketch8.addConstraint(Sketcher.Constraint("Vertical", 2, 2, 5, 2))
sketch8.addConstraint(Sketcher.Constraint("Radius", 4, Q("150.000001 mm")))
sketch8.addConstraint(Sketcher.Constraint("DistanceX", 1, 1, 1, 2, Q("114 mm")))
sketch8.addConstraint(Sketcher.Constraint("DistanceX", 3, 1, 3, 2, Q("45 mm")))
sketch8.addConstraint(Sketcher.Constraint("DistanceY", 0, 2, -1, 1, Q("32 mm")))
sketch8.addConstraint(Sketcher.Constraint("DistanceY", 2, 2, -1, 1, Q("40 mm")))
sketch8.addConstraint(Sketcher.Constraint("Radius", 0, Q("150.000008 mm")))
pad8 = doc.addObject("PartDesign::Pad", "Pad007")
body17.addObject(pad8)
pad8.Profile = sketch8
pad8.Length = 42
pad8.Reversed = True
doc.recompute()

boolean13 = doc.addObject("PartDesign::Boolean", "Boolean012")
body17.addObject(boolean13)
boolean13.Type = "Cut"
boolean13.addObjects([body16])
doc.recompute()

boolean14 = doc.addObject("PartDesign::Boolean", "Boolean013")
body17.addObject(boolean14)
boolean14.Type = "Cut"
boolean14.addObjects([body15])
doc.recompute()

boolean15 = doc.addObject("PartDesign::Boolean", "Boolean014")
body17.addObject(boolean15)
boolean15.Type = "Fuse"
boolean15.addObjects([body14])
doc.recompute()

boolean16 = doc.addObject("PartDesign::Boolean", "Boolean015")
body17.addObject(boolean16)
boolean16.Type = "Cut"
boolean16.addObjects([body6])
doc.recompute()

fillet = doc.addObject("PartDesign::Fillet", "Fillet")
body17.addObject(fillet)
fillet.Base = (boolean16, edges_at(boolean16, [
    (-84.489, 32, -21),
    (-84.489, -32, -21),
    (-87.942, 0, -42),
    (-27.489, 32, -42),
    (-27.489, -32, -42),
    (33.511, 36, -42),
    (58.755, 40, -42),
    (33.511, -36, -42),
    (58.755, -40, -42),
    (37.511, 40, -21),
    (37.511, -40, -21),
]))
fillet.Radius = 2
body18 = doc.addObject("PartDesign::Body", "Body017")
doc.recompute()

body17.Placement = App.Placement(Vector(0, 0, -25.5), App.Rotation(Vector(0, 0, 1), 0))
boolean17 = doc.addObject("PartDesign::Boolean", "Boolean016")
body18.addObject(boolean17)
boolean17.Type = "Fuse"
boolean17.addObjects([body17])

doc.recompute()
